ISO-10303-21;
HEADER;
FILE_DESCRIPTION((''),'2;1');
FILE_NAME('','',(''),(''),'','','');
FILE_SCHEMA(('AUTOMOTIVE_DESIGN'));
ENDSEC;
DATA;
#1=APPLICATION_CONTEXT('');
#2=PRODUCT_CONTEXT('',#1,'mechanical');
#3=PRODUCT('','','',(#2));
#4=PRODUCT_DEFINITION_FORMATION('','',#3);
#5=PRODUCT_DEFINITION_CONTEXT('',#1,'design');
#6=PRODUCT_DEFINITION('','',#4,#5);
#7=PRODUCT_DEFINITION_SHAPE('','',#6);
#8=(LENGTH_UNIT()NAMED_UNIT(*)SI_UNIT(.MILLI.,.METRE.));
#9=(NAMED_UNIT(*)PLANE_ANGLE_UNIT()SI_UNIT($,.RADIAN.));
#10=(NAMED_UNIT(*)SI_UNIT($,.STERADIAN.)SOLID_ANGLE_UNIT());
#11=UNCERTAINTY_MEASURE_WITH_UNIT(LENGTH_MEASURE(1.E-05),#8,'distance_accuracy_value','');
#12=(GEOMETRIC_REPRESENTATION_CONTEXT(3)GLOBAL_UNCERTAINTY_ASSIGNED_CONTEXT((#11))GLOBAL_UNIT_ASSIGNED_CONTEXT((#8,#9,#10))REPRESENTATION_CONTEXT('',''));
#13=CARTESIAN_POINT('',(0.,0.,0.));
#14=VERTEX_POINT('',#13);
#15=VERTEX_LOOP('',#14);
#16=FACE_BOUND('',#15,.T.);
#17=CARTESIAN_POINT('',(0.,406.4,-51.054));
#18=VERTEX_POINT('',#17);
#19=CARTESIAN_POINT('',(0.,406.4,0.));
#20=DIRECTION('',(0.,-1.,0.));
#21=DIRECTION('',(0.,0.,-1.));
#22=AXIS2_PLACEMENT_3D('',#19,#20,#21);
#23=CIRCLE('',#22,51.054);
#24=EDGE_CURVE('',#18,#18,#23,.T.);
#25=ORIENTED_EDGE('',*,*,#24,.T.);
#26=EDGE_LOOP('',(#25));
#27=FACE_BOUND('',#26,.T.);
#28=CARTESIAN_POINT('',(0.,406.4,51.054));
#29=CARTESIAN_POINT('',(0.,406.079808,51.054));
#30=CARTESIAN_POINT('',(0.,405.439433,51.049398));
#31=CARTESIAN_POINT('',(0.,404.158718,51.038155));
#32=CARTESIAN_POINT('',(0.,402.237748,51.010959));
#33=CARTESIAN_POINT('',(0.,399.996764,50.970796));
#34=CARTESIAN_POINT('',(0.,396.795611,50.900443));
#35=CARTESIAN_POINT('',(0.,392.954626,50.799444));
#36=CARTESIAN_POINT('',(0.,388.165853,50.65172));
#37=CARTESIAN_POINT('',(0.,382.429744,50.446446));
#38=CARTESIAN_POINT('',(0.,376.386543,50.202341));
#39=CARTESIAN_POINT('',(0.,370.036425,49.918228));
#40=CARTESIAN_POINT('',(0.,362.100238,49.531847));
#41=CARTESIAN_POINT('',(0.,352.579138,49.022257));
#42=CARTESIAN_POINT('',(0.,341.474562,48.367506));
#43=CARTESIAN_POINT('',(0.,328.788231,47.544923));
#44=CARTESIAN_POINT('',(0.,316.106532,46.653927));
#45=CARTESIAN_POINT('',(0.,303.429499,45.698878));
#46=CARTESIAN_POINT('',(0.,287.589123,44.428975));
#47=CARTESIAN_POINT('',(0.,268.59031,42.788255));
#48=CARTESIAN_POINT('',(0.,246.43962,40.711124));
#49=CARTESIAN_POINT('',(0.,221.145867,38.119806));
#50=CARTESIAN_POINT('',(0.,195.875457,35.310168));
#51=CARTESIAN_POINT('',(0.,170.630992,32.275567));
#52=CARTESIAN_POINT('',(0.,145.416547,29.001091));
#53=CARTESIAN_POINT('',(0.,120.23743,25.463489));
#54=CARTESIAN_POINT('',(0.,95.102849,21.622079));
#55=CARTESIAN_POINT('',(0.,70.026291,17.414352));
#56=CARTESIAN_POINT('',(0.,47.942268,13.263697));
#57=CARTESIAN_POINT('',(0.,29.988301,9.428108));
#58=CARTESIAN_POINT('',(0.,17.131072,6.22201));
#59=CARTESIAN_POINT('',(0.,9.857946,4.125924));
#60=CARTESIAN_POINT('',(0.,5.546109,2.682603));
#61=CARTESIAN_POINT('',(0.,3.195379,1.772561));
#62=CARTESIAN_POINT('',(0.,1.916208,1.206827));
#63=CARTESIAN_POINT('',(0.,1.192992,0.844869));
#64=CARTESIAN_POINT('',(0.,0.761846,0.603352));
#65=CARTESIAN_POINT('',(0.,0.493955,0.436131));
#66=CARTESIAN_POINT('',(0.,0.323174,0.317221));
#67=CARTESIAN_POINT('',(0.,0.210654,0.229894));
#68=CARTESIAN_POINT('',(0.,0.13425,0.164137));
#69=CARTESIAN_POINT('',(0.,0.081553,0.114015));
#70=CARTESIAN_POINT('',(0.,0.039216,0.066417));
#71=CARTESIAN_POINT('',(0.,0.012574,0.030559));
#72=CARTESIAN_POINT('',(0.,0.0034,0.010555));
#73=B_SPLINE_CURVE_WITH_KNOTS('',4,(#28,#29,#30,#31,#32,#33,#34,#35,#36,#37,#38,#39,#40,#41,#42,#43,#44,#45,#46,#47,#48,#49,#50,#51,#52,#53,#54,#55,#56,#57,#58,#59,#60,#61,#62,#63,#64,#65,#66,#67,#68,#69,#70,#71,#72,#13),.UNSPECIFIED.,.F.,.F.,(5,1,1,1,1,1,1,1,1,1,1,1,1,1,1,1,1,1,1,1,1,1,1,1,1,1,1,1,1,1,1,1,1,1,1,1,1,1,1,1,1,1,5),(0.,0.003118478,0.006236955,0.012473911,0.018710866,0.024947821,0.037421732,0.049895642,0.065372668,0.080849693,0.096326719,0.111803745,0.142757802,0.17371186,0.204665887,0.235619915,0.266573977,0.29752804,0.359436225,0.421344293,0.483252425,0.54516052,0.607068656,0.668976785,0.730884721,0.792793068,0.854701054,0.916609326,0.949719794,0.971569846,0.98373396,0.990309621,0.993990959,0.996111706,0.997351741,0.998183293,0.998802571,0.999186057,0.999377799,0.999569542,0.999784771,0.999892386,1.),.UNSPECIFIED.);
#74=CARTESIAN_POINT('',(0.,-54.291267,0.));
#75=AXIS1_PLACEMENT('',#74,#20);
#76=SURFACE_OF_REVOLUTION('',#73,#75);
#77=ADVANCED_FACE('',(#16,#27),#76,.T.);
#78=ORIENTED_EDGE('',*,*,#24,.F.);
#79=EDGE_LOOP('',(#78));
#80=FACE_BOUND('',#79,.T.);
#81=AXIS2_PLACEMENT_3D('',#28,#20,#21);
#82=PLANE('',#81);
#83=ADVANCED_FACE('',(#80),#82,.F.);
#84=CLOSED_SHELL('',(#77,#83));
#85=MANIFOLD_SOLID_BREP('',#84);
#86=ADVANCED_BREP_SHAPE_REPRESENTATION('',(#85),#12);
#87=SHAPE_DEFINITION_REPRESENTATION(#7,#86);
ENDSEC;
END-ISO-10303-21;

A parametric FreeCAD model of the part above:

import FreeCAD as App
import Part
import Sketcher

doc = App.newDocument("Part")
params = doc.addObject("Spreadsheet::Sheet", "Params")
for row, (alias, value) in enumerate([
    ("revolution_angle", "360 deg"),
], start=1):
    params.set(f"A{row}", alias)
    params.set(f"B{row}", "=" + value)
    params.setAlias(f"B{row}", alias)

body = doc.addObject("PartDesign::Body", "Body")

# Sketch on YZ plane
sketch1 = body.newObject("Sketcher::SketchObject", "Sketch")
sketch1.AttachmentSupport = (doc.getObject("YZ_Plane"), [""])
sketch1.MapMode = "FlatFace"
sketch1.addGeometry([
    Part.LineSegment(App.Vector(406.4, 0, 0), App.Vector(406.4, 51.054, 0)),
    Part.BSplineCurve([App.Vector(0, 0, 0), App.Vector(0.0034, 0.010555, 0), App.Vector(0.012574, 0.030559, 0), App.Vector(0.039216, 0.066417, 0), App.Vector(0.081553, 0.114015, 0), App.Vector(0.13425, 0.164137, 0), App.Vector(0.210654, 0.229894, 0), App.Vector(0.323174, 0.317221, 0), App.Vector(0.493955, 0.436131, 0), App.Vector(0.761846, 0.603352, 0), App.Vector(1.192992, 0.844869, 0), App.Vector(1.916208, 1.206827, 0), App.Vector(3.195379, 1.772561, 0), App.Vector(5.546109, 2.682603, 0), App.Vector(9.857946, 4.125924, 0), App.Vector(17.131072, 6.22201, 0), App.Vector(29.988301, 9.428108, 0), App.Vector(47.942268, 13.263697, 0), App.Vector(70.026291, 17.414352, 0), App.Vector(95.102849, 21.622079, 0), App.Vector(120.23743, 25.463489, 0), App.Vector(145.416547, 29.001091, 0), App.Vector(170.630992, 32.275567, 0), App.Vector(195.875457, 35.310168, 0), App.Vector(221.145867, 38.119806, 0), App.Vector(246.43962, 40.711124, 0), App.Vector(268.59031, 42.788255, 0), App.Vector(287.589123, 44.428975, 0), App.Vector(303.429499, 45.698878, 0), App.Vector(316.106532, 46.653927, 0), App.Vector(328.788231, 47.544923, 0), App.Vector(341.474562, 48.367506, 0), App.Vector(352.579138, 49.022257, 0), App.Vector(362.100238, 49.531847, 0), App.Vector(370.036425, 49.918228, 0), App.Vector(376.386543, 50.202341, 0), App.Vector(382.429744, 50.446446, 0), App.Vector(388.165853, 50.65172, 0), App.Vector(392.954626, 50.799444, 0), App.Vector(396.795611, 50.900443, 0), App.Vector(399.996764, 50.970796, 0), App.Vector(402.237748, 51.010959, 0), App.Vector(404.158718, 51.038155, 0), App.Vector(405.439433, 51.049398, 0), App.Vector(406.079808, 51.054, 0), App.Vector(406.4, 51.054, 0)], [5, 1, 1, 1, 1, 1, 1, 1, 1, 1, 1, 1, 1, 1, 1, 1, 1, 1, 1, 1, 1, 1, 1, 1, 1, 1, 1, 1, 1, 1, 1, 1, 1, 1, 1, 1, 1, 1, 1, 1, 1, 1, 5], [0, 0.000107614, 0.000215229, 0.000430458, 0.000622201, 0.000813943, 0.001197429, 0.001816707, 0.002648259, 0.003888294, 0.006009041, 0.009690379, 0.01626604, 0.028430154, 0.050280206, 0.083390674, 0.145298946, 0.207206932, 0.269115279, 0.331023215, 0.392931344, 0.45483948, 0.516747575, 0.578655707, 0.640563775, 0.70247196, 0.733426023, 0.764380085, 0.795334113, 0.82628814, 0.857242198, 0.888196255, 0.903673281, 0.919150307, 0.934627332, 0.950104358, 0.962578268, 0.975052179, 0.981289134, 0.987526089, 0.993763045, 0.996881522, 1], False, 4, [1, 1, 1, 1, 1, 1, 1, 1, 1, 1, 1, 1, 1, 1, 1, 1, 1, 1, 1, 1, 1, 1, 1, 1, 1, 1, 1, 1, 1, 1, 1, 1, 1, 1, 1, 1, 1, 1, 1, 1, 1, 1, 1, 1, 1, 1], False),
    Part.LineSegment(App.Vector(0, 0, 0), App.Vector(406.4, 0, 0)),
], False)
sketch1.addConstraint([
    Sketcher.Constraint("Block", 1),
    Sketcher.Constraint("Coincident", 0, 2, 1, 2),
    Sketcher.Constraint("Coincident", 1, 1, 2, 1),
    Sketcher.Constraint("Coincident", 2, 2, 0, 1),
    Sketcher.Constraint("Vertical", 0),
    Sketcher.Constraint("Horizontal", 2),
])
revolution = body.newObject("PartDesign::Revolution", "Revolution")
revolution.Profile = sketch1
revolution.ReferenceAxis = (sketch1, ["H_Axis"])
revolution.setExpression("Angle", "Params.revolution_angle")

doc.recompute()
